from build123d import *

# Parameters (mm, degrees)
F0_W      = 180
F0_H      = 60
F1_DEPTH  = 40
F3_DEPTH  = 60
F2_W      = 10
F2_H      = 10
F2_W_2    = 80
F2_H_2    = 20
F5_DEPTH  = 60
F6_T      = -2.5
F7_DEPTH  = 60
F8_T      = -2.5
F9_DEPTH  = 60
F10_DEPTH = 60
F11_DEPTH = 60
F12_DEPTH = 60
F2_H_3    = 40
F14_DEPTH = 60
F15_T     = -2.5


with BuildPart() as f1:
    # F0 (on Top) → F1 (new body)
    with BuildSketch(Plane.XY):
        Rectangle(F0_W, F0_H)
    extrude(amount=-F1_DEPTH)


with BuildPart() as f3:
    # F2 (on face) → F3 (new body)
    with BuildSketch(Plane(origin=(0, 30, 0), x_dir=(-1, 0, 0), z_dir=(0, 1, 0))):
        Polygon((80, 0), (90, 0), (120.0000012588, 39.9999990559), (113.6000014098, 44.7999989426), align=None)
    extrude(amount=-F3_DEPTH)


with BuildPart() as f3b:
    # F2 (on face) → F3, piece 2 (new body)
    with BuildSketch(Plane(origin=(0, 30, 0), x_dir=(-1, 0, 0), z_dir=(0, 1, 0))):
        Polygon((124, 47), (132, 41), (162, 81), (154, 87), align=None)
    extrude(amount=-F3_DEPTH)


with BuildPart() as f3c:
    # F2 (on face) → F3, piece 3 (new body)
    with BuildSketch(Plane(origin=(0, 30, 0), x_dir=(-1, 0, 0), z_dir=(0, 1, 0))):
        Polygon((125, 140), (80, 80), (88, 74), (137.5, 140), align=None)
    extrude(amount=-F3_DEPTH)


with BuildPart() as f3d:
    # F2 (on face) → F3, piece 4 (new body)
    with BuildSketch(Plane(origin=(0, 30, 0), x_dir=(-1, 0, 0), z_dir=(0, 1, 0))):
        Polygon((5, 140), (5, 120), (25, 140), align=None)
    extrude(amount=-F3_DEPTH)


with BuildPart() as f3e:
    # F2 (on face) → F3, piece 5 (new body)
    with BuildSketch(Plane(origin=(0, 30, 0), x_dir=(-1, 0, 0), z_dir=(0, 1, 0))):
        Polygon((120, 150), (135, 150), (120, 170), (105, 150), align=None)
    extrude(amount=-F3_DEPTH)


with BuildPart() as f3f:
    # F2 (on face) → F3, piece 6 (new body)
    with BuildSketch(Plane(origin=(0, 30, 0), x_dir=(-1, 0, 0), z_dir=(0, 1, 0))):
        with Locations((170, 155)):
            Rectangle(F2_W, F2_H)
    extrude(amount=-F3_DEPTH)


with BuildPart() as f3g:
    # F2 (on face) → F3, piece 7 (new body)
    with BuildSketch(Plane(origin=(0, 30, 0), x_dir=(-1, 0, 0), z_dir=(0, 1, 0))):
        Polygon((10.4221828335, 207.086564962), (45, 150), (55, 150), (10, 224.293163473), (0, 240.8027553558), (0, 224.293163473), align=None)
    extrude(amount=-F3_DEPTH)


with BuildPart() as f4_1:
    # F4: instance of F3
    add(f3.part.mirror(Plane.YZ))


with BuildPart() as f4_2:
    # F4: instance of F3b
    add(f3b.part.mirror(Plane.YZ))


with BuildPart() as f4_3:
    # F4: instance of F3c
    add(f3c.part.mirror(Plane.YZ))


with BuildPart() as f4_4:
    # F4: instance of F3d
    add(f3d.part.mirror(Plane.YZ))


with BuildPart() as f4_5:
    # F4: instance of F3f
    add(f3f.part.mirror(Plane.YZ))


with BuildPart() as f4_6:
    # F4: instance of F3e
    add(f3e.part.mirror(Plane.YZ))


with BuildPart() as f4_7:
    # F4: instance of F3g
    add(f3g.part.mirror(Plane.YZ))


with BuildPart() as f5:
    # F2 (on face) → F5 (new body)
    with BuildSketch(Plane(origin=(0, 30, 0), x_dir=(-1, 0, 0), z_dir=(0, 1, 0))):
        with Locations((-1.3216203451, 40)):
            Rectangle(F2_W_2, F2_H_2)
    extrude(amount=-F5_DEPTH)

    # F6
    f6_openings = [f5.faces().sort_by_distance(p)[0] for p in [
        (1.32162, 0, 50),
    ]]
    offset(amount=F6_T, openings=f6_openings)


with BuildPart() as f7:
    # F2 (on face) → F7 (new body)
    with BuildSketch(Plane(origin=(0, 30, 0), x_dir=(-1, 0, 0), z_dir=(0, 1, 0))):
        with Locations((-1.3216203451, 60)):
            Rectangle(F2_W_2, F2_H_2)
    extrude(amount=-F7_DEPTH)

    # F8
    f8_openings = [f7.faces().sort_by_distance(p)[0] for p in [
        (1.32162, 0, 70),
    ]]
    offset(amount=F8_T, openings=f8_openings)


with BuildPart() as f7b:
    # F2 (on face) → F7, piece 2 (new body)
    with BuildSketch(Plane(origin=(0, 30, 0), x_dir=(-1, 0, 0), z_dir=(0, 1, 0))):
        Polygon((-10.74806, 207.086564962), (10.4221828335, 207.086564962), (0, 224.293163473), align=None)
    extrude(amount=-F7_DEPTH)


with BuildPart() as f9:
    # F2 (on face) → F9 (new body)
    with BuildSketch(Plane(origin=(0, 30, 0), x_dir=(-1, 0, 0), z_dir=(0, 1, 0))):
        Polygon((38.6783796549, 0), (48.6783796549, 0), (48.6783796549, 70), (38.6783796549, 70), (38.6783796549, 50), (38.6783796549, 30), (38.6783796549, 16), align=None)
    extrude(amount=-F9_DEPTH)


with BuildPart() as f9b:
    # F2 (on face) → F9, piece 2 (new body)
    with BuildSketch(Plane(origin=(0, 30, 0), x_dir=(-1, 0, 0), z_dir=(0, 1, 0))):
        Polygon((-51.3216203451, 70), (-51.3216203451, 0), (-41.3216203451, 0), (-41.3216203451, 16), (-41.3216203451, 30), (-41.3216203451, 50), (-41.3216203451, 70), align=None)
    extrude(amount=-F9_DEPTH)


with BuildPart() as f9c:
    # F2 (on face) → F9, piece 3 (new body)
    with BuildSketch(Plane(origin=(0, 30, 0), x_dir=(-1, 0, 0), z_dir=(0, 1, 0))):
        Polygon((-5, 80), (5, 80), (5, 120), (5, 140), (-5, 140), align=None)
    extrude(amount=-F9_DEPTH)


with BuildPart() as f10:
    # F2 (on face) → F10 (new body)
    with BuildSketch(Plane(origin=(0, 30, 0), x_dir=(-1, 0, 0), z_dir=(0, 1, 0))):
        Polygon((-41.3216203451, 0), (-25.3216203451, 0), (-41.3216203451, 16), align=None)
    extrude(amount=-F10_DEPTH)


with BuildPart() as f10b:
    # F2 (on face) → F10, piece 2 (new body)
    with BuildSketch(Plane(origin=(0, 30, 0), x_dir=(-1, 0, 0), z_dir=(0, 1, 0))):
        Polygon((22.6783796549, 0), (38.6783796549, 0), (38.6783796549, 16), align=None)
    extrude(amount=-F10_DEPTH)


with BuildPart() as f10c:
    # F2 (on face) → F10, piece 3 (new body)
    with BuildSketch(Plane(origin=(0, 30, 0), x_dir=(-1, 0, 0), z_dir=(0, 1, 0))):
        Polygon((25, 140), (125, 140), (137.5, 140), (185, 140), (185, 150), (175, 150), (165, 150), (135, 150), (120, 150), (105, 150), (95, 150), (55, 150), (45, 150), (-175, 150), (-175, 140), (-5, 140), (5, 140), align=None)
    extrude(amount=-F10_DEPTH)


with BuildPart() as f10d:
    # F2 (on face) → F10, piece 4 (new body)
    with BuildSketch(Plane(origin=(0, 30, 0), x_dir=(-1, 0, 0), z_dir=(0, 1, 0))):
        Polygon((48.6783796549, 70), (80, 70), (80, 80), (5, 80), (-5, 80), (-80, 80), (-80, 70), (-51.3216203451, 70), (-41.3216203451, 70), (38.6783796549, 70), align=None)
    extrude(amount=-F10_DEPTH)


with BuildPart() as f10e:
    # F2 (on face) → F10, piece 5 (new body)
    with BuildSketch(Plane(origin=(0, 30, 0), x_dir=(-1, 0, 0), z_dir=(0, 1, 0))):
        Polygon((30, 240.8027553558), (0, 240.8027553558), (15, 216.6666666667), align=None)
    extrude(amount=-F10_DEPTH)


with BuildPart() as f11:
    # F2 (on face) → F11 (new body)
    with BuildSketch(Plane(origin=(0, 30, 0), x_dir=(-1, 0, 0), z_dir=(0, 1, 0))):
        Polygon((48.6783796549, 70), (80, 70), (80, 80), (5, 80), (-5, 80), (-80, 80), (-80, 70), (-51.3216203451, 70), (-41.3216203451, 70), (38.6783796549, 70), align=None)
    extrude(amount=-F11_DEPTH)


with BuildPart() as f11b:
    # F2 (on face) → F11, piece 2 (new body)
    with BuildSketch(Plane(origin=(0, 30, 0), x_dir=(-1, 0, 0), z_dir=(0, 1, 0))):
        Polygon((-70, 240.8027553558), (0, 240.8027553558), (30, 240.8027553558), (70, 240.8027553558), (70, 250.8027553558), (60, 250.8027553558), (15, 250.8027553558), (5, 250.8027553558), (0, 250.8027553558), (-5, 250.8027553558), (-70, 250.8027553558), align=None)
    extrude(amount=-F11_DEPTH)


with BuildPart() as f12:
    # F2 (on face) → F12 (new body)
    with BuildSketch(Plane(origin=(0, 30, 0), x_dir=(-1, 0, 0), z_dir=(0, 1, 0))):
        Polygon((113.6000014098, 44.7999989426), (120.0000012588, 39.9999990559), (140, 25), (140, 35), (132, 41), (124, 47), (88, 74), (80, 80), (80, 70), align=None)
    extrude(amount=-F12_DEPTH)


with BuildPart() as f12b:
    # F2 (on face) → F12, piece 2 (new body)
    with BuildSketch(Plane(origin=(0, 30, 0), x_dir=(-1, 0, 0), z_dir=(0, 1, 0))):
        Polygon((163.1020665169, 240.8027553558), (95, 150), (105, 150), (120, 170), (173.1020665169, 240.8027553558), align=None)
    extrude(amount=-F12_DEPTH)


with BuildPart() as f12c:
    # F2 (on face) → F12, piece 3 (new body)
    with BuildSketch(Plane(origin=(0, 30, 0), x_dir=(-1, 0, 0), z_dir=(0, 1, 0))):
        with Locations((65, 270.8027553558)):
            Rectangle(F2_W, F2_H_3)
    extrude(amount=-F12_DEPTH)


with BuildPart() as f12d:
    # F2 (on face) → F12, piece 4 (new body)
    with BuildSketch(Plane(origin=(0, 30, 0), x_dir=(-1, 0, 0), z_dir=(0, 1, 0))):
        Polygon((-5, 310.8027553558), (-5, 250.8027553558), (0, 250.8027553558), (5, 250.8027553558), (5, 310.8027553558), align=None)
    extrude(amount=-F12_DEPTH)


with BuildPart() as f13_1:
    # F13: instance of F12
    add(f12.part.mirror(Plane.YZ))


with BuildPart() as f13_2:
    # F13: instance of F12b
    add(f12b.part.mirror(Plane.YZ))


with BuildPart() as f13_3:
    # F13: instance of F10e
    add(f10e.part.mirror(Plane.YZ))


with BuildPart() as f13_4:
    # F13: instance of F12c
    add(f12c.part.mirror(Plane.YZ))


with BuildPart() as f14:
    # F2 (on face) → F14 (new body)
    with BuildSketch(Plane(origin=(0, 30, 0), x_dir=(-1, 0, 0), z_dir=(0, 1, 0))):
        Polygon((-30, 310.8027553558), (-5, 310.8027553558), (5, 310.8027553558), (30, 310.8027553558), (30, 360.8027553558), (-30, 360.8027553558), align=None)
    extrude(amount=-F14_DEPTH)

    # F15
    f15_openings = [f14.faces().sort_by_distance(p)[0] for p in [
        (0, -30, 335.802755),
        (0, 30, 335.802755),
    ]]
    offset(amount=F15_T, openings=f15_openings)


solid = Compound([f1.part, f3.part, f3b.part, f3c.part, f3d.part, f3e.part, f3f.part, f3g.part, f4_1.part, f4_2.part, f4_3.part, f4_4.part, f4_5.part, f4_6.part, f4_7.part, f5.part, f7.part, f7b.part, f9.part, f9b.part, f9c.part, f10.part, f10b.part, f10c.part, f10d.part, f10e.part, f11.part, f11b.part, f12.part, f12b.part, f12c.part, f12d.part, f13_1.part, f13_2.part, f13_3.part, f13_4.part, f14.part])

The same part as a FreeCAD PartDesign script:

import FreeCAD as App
import Part
import Sketcher


def faces_at(feature, points):
    """Names of the faces that lie closest to the given points."""
    faces = feature.Shape.Faces
    near = lambda p: min(range(len(faces)), key=lambda i: faces[i].distToShape(Part.Vertex(*p))[0])
    return sorted({f"Face{near(p) + 1}" for p in points})


def add_polygon(sketch, points):
    """Adds a closed chain of lines whose ends are joined by coincident constraints."""
    first, n = sketch.GeometryCount, len(points)
    for a, b in zip(points, points[1:] + points[:1]):
        sketch.addGeometry(Part.LineSegment(App.Vector(*a, 0), App.Vector(*b, 0)), False)
    for i in range(n):
        sketch.addConstraint(Sketcher.Constraint("Coincident", first + i, 2, first + (i + 1) % n, 1))

doc = App.newDocument("Part")
body = doc.addObject("PartDesign::Body", "Body")

# Sketch on XY plane
sketch1 = doc.addObject("Sketcher::SketchObject", "Sketch")
body.addObject(sketch1)
sketch1.AttachmentSupport = (doc.XY_Plane, [""])
sketch1.MapMode = "FlatFace"
add_polygon(sketch1, [(-90, 30), (-90, -30), (90, -30), (90, 30)])  # lines 0-3
sketch1.addConstraint(Sketcher.Constraint("Vertical", 0))
sketch1.addConstraint(Sketcher.Constraint("Horizontal", 1))
sketch1.addConstraint(Sketcher.Constraint("Vertical", 2))
sketch1.addConstraint(Sketcher.Constraint("Horizontal", 3))
sketch1.addConstraint(Sketcher.Constraint("Symmetric", 0, 2, 2, 2, -1, 1))
sketch1.addConstraint(Sketcher.Constraint("DistanceX", 1, 1, 1, 2, 180.0))
sketch1.addConstraint(Sketcher.Constraint("DistanceY", 0, 2, 0, 1, 60.0))
pad1 = doc.addObject("PartDesign::Pad", "Pad")
body.addObject(pad1)
pad1.Profile = sketch1
pad1.Length = 40
pad1.Reversed = True
body2 = doc.addObject("PartDesign::Body", "Body001")

# Sketch on XZ plane
sketch2 = doc.addObject("Sketcher::SketchObject", "Sketch001")
body2.addObject(sketch2)
sketch2.AttachmentSupport = (doc.getObject("XZ_Plane001"), [""])
sketch2.MapMode = "FlatFace"
sketch2.AttachmentOffset = App.Placement(App.Vector(0, 0, -30), App.Rotation())
add_polygon(sketch2, [(-80, 0), (-90, 0), (-120, 40), (-114, 45)])  # lines 0-3
sketch2.addConstraint(Sketcher.Constraint("Horizontal", 0))
sketch2.addConstraint(Sketcher.Constraint("PointOnObject", 0, 2, -1))
sketch2.addConstraint(Sketcher.Constraint("Perpendicular", 1, 2))
sketch2.addConstraint(Sketcher.Constraint("Perpendicular", 2, 3))
sketch2.addConstraint(Sketcher.Constraint("DistanceX", 0, 2, 0, 1, 10.0))
sketch2.addConstraint(Sketcher.Constraint("Distance", 1, 50.0))
sketch2.addConstraint(Sketcher.Constraint("Distance", 2, 8.0))
sketch2.addConstraint(Sketcher.Constraint("DistanceX", 0, 2, -1, 1, 90.0))
pad2 = doc.addObject("PartDesign::Pad", "Pad001")
body2.addObject(pad2)
pad2.Profile = sketch2
pad2.Length = 60
body3 = doc.addObject("PartDesign::Body", "Body002")

# Sketch on XZ plane
sketch3 = doc.addObject("Sketcher::SketchObject", "Sketch002")
body3.addObject(sketch3)
sketch3.AttachmentSupport = (doc.getObject("XZ_Plane002"), [""])
sketch3.MapMode = "FlatFace"
sketch3.AttachmentOffset = App.Placement(App.Vector(0, 0, -30), App.Rotation())
add_polygon(sketch3, [(-124, 47), (-132, 41), (-162, 81), (-154, 87)])  # lines 0-3
sketch3.addConstraint(Sketcher.Constraint("Perpendicular", 0, 1))
sketch3.addConstraint(Sketcher.Constraint("Perpendicular", 1, 2))
sketch3.addConstraint(Sketcher.Constraint("Perpendicular", 2, 3))
sketch3.addConstraint(Sketcher.Constraint("Distance", 0, 10.0))
sketch3.addConstraint(Sketcher.Constraint("Distance", 1, 50.0))
sketch3.addConstraint(Sketcher.Constraint("DistanceX", 0, 2, -1, 1, 132.0))
sketch3.addConstraint(Sketcher.Constraint("DistanceY", -1, 1, 0, 2, 41.0))
sketch3.addConstraint(Sketcher.Constraint("DistanceX", 1, 2, -1, 1, 162.0))
pad3 = doc.addObject("PartDesign::Pad", "Pad002")
body3.addObject(pad3)
pad3.Profile = sketch3
pad3.Length = 60
body4 = doc.addObject("PartDesign::Body", "Body003")

# Sketch on XZ plane
sketch4 = doc.addObject("Sketcher::SketchObject", "Sketch003")
body4.addObject(sketch4)
sketch4.AttachmentSupport = (doc.getObject("XZ_Plane003"), [""])
sketch4.MapMode = "FlatFace"
sketch4.AttachmentOffset = App.Placement(App.Vector(0, 0, -30), App.Rotation())
add_polygon(sketch4, [(-125, 140), (-80, 80), (-88, 74), (-138, 140)])  # lines 0-3
sketch4.addConstraint(Sketcher.Constraint("Horizontal", 3))
sketch4.addConstraint(Sketcher.Constraint("Perpendicular", 0, 1))
sketch4.addConstraint(Sketcher.Constraint("Perpendicular", 1, 2))
sketch4.addConstraint(Sketcher.Constraint("Distance", 0, 75.0))
sketch4.addConstraint(Sketcher.Constraint("Distance", 1, 10.0))
sketch4.addConstraint(Sketcher.Constraint("DistanceX", 3, 1, 3, 2, 12.5))
sketch4.addConstraint(Sketcher.Constraint("DistanceX", 0, 2, -1, 1, 80.0))
sketch4.addConstraint(Sketcher.Constraint("DistanceY", -1, 1, 0, 2, 80.0))
pad4 = doc.addObject("PartDesign::Pad", "Pad003")
body4.addObject(pad4)
pad4.Profile = sketch4
pad4.Length = 60
body5 = doc.addObject("PartDesign::Body", "Body004")

# Sketch on XZ plane
sketch5 = doc.addObject("Sketcher::SketchObject", "Sketch004")
body5.addObject(sketch5)
sketch5.AttachmentSupport = (doc.getObject("XZ_Plane004"), [""])
sketch5.MapMode = "FlatFace"
sketch5.AttachmentOffset = App.Placement(App.Vector(0, 0, -30), App.Rotation())
add_polygon(sketch5, [(-5, 140), (-5, 120), (-25, 140)])  # lines 0-2
sketch5.addConstraint(Sketcher.Constraint("Vertical", 0))
sketch5.addConstraint(Sketcher.Constraint("Horizontal", 2))
sketch5.addConstraint(Sketcher.Constraint("Equal", 2, 0))
sketch5.addConstraint(Sketcher.Constraint("DistanceX", 2, 1, 2, 2, 20.0))
sketch5.addConstraint(Sketcher.Constraint("DistanceX", 0, 2, -1, 1, 5.0))
sketch5.addConstraint(Sketcher.Constraint("DistanceY", -1, 1, 0, 2, 120.0))
pad5 = doc.addObject("PartDesign::Pad", "Pad004")
body5.addObject(pad5)
pad5.Profile = sketch5
pad5.Length = 60
body6 = doc.addObject("PartDesign::Body", "Body005")

# Sketch on XZ plane
sketch6 = doc.addObject("Sketcher::SketchObject", "Sketch005")
body6.addObject(sketch6)
sketch6.AttachmentSupport = (doc.getObject("XZ_Plane005"), [""])
sketch6.MapMode = "FlatFace"
sketch6.AttachmentOffset = App.Placement(App.Vector(0, 0, -30), App.Rotation())
add_polygon(sketch6, [(-135, 150), (-120, 170), (-105, 150)])  # lines 0-2
sketch6.addConstraint(Sketcher.Constraint("Horizontal", 2))
sketch6.addConstraint(Sketcher.Constraint("Equal", 0, 1))
sketch6.addConstraint(Sketcher.Constraint("DistanceX", 2, 2, 2, 1, 30.0))
sketch6.addConstraint(Sketcher.Constraint("Distance", 0, 25.0))
sketch6.addConstraint(Sketcher.Constraint("DistanceX", 0, 2, -1, 1, 120.0))
sketch6.addConstraint(Sketcher.Constraint("DistanceY", -1, 1, 0, 2, 170.0))
pad6 = doc.addObject("PartDesign::Pad", "Pad005")
body6.addObject(pad6)
pad6.Profile = sketch6
pad6.Length = 60
body7 = doc.addObject("PartDesign::Body", "Body006")

# Sketch on XZ plane
sketch7 = doc.addObject("Sketcher::SketchObject", "Sketch006")
body7.addObject(sketch7)
sketch7.AttachmentSupport = (doc.getObject("XZ_Plane006"), [""])
sketch7.MapMode = "FlatFace"
sketch7.AttachmentOffset = App.Placement(App.Vector(0, 0, -30), App.Rotation())
add_polygon(sketch7, [(-165, 160), (-165, 150), (-175, 150), (-175, 160)])  # lines 0-3
sketch7.addConstraint(Sketcher.Constraint("Vertical", 0))
sketch7.addConstraint(Sketcher.Constraint("Horizontal", 1))
sketch7.addConstraint(Sketcher.Constraint("Vertical", 2))
sketch7.addConstraint(Sketcher.Constraint("Horizontal", 3))
sketch7.addConstraint(Sketcher.Constraint("Equal", 3, 0))
sketch7.addConstraint(Sketcher.Constraint("DistanceX", 1, 2, 1, 1, 10.0))
sketch7.addConstraint(Sketcher.Constraint("DistanceX", 0, 2, -1, 1, 165.0))
sketch7.addConstraint(Sketcher.Constraint("DistanceY", -1, 1, 0, 2, 150.0))
pad7 = doc.addObject("PartDesign::Pad", "Pad006")
body7.addObject(pad7)
pad7.Profile = sketch7
pad7.Length = 60
body8 = doc.addObject("PartDesign::Body", "Body007")

# Sketch on XZ plane
sketch8 = doc.addObject("Sketcher::SketchObject", "Sketch007")
body8.addObject(sketch8)
sketch8.AttachmentSupport = (doc.getObject("XZ_Plane007"), [""])
sketch8.MapMode = "FlatFace"
sketch8.AttachmentOffset = App.Placement(App.Vector(0, 0, -30), App.Rotation())
add_polygon(sketch8, [(-45, 150), (-55, 150), (-10, 224), (0, 241), (0, 224)])  # lines 0-4
sketch8.addConstraint(Sketcher.Constraint("Horizontal", 0))
sketch8.addConstraint(Sketcher.Constraint("Vertical", 3))
sketch8.addConstraint(Sketcher.Constraint("PointOnObject", 2, 2, -2))
sketch8.addConstraint(Sketcher.Constraint("Parallel", 1, 2))
sketch8.addConstraint(Sketcher.Constraint("Parallel", 2, 4))
sketch8.addConstraint(Sketcher.Constraint("Horizontal", 1, 2, 3, 2))
sketch8.addConstraint(Sketcher.Constraint("DistanceX", 0, 2, 0, 1, 10.0))
sketch8.addConstraint(Sketcher.Constraint("DistanceX", 0, 2, -1, 1, 55.0))
sketch8.addConstraint(Sketcher.Constraint("DistanceY", -1, 1, 0, 2, 150.0))
sketch8.addConstraint(Sketcher.Constraint("DistanceY", 3, 2, 3, 1, 16.509592))
pad8 = doc.addObject("PartDesign::Pad", "Pad007")
body8.addObject(pad8)
pad8.Profile = sketch8
pad8.Length = 60
body9 = doc.addObject("PartDesign::Body", "Body008")
doc.recompute()

mirroring = doc.addObject("Part::Mirroring", "Mirroring")
mirroring.Source = body2
mirroring.Base = App.Vector(0, 0, 0)
mirroring.Normal = App.Vector(1, 0, 0)
body9.BaseFeature = mirroring
doc.recompute()
body10 = doc.addObject("PartDesign::Body", "Body009")
doc.recompute()

mirroring2 = doc.addObject("Part::Mirroring", "Mirroring001")
mirroring2.Source = body3
mirroring2.Base = App.Vector(0, 0, 0)
mirroring2.Normal = App.Vector(1, 0, 0)
body10.BaseFeature = mirroring2
doc.recompute()
body11 = doc.addObject("PartDesign::Body", "Body010")
doc.recompute()

mirroring3 = doc.addObject("Part::Mirroring", "Mirroring002")
mirroring3.Source = body4
mirroring3.Base = App.Vector(0, 0, 0)
mirroring3.Normal = App.Vector(1, 0, 0)
body11.BaseFeature = mirroring3
doc.recompute()
body12 = doc.addObject("PartDesign::Body", "Body011")
doc.recompute()

mirroring4 = doc.addObject("Part::Mirroring", "Mirroring003")
mirroring4.Source = body5
mirroring4.Base = App.Vector(0, 0, 0)
mirroring4.Normal = App.Vector(1, 0, 0)
body12.BaseFeature = mirroring4
doc.recompute()
body13 = doc.addObject("PartDesign::Body", "Body012")
doc.recompute()

mirroring5 = doc.addObject("Part::Mirroring", "Mirroring004")
mirroring5.Source = body7
mirroring5.Base = App.Vector(0, 0, 0)
mirroring5.Normal = App.Vector(1, 0, 0)
body13.BaseFeature = mirroring5
doc.recompute()
body14 = doc.addObject("PartDesign::Body", "Body013")
doc.recompute()

mirroring6 = doc.addObject("Part::Mirroring", "Mirroring005")
mirroring6.Source = body6
mirroring6.Base = App.Vector(0, 0, 0)
mirroring6.Normal = App.Vector(1, 0, 0)
body14.BaseFeature = mirroring6
doc.recompute()
body15 = doc.addObject("PartDesign::Body", "Body014")
doc.recompute()

mirroring7 = doc.addObject("Part::Mirroring", "Mirroring006")
mirroring7.Source = body8
mirroring7.Base = App.Vector(0, 0, 0)
mirroring7.Normal = App.Vector(1, 0, 0)
body15.BaseFeature = mirroring7
doc.recompute()
body16 = doc.addObject("PartDesign::Body", "Body015")

# Sketch on XZ plane
sketch9 = doc.addObject("Sketcher::SketchObject", "Sketch008")
body16.addObject(sketch9)
sketch9.AttachmentSupport = (doc.getObject("XZ_Plane015"), [""])
sketch9.MapMode = "FlatFace"
sketch9.AttachmentOffset = App.Placement(App.Vector(0, 0, -30), App.Rotation())
add_polygon(sketch9, [(41, 50), (41, 30), (-39, 30), (-39, 50)])  # lines 0-3
sketch9.addConstraint(Sketcher.Constraint("Vertical", 0))
sketch9.addConstraint(Sketcher.Constraint("Horizontal", 1))
sketch9.addConstraint(Sketcher.Constraint("Vertical", 2))
sketch9.addConstraint(Sketcher.Constraint("Horizontal", 3))
sketch9.addConstraint(Sketcher.Constraint("DistanceX", 1, 2, 1, 1, 80.0))
sketch9.addConstraint(Sketcher.Constraint("DistanceY", 0, 2, 0, 1, 20.0))
sketch9.addConstraint(Sketcher.Constraint("DistanceY", -1, 1, 0, 2, 30.0))
sketch9.addConstraint(Sketcher.Constraint("DistanceX", -1, 1, 0, 2, 41.32162))
pad9 = doc.addObject("PartDesign::Pad", "Pad008")
body16.addObject(pad9)
pad9.Profile = sketch9
pad9.Length = 60
doc.recompute()

thickness = doc.addObject("PartDesign::Thickness", "Thickness")
body16.addObject(thickness)
thickness.Base = (pad9, faces_at(pad9, [(1.322, 0, 50)]))
thickness.Value = 2.5
thickness.Reversed = True
thickness.Join = "Arc"
body17 = doc.addObject("PartDesign::Body", "Body016")

# Sketch on XZ plane
sketch10 = doc.addObject("Sketcher::SketchObject", "Sketch009")
body17.addObject(sketch10)
sketch10.AttachmentSupport = (doc.getObject("XZ_Plane016"), [""])
sketch10.MapMode = "FlatFace"
sketch10.AttachmentOffset = App.Placement(App.Vector(0, 0, -30), App.Rotation())
add_polygon(sketch10, [(41, 70), (41, 50), (-39, 50), (-39, 70)])  # lines 0-3
sketch10.addConstraint(Sketcher.Constraint("Vertical", 0))
sketch10.addConstraint(Sketcher.Constraint("Horizontal", 1))
sketch10.addConstraint(Sketcher.Constraint("Vertical", 2))
sketch10.addConstraint(Sketcher.Constraint("Horizontal", 3))
sketch10.addConstraint(Sketcher.Constraint("DistanceX", 1, 2, 1, 1, 80.0))
sketch10.addConstraint(Sketcher.Constraint("DistanceY", 0, 2, 0, 1, 20.0))
sketch10.addConstraint(Sketcher.Constraint("DistanceY", -1, 1, 0, 2, 50.0))
sketch10.addConstraint(Sketcher.Constraint("DistanceX", -1, 1, 0, 2, 41.32162))
pad10 = doc.addObject("PartDesign::Pad", "Pad009")
body17.addObject(pad10)
pad10.Profile = sketch10
pad10.Length = 60
doc.recompute()

thickness2 = doc.addObject("PartDesign::Thickness", "Thickness001")
body17.addObject(thickness2)
thickness2.Base = (pad10, faces_at(pad10, [(1.322, 0, 70)]))
thickness2.Value = 2.5
thickness2.Reversed = True
thickness2.Join = "Arc"
body18 = doc.addObject("PartDesign::Body", "Body017")

# Sketch on XZ plane
sketch11 = doc.addObject("Sketcher::SketchObject", "Sketch010")
body18.addObject(sketch11)
sketch11.AttachmentSupport = (doc.getObject("XZ_Plane017"), [""])
sketch11.MapMode = "FlatFace"
sketch11.AttachmentOffset = App.Placement(App.Vector(0, 0, -30), App.Rotation())
add_polygon(sketch11, [(11, 207), (-10, 207), (0, 224)])  # lines 0-2
sketch11.addConstraint(Sketcher.Constraint("Horizontal", 0))
sketch11.addConstraint(Sketcher.Constraint("PointOnObject", 1, 2, -2))
sketch11.addConstraint(Sketcher.Constraint("DistanceY", 0, 2, 1, 2, 17.206599))
sketch11.addConstraint(Sketcher.Constraint("Distance", 1, 20.116882))
sketch11.addConstraint(Sketcher.Constraint("DistanceX", 0, 2, 0, 1, 21.170243))
sketch11.addConstraint(Sketcher.Constraint("DistanceY", -1, 1, 0, 2, 207.086565))
pad11 = doc.addObject("PartDesign::Pad", "Pad010")
body18.addObject(pad11)
pad11.Profile = sketch11
pad11.Length = 60
body19 = doc.addObject("PartDesign::Body", "Body018")

# Sketch on XZ plane
sketch12 = doc.addObject("Sketcher::SketchObject", "Sketch011")
body19.addObject(sketch12)
sketch12.AttachmentSupport = (doc.getObject("XZ_Plane018"), [""])
sketch12.MapMode = "FlatFace"
sketch12.AttachmentOffset = App.Placement(App.Vector(0, 0, -30), App.Rotation())
add_polygon(sketch12, [(-39, 0), (-49, 0), (-49, 70), (-39, 70)])  # lines 0-3
sketch12.addConstraint(Sketcher.Constraint("Horizontal", 0))
sketch12.addConstraint(Sketcher.Constraint("Vertical", 1))
sketch12.addConstraint(Sketcher.Constraint("Horizontal", 2))
sketch12.addConstraint(Sketcher.Constraint("Vertical", 3))
sketch12.addConstraint(Sketcher.Constraint("PointOnObject", 0, 2, -1))
sketch12.addConstraint(Sketcher.Constraint("DistanceX", 0, 2, 0, 1, 10.0))
sketch12.addConstraint(Sketcher.Constraint("DistanceY", 1, 1, 1, 2, 70.0))
sketch12.addConstraint(Sketcher.Constraint("DistanceX", 0, 2, -1, 1, 48.67838))
pad12 = doc.addObject("PartDesign::Pad", "Pad011")
body19.addObject(pad12)
pad12.Profile = sketch12
pad12.Length = 60
body20 = doc.addObject("PartDesign::Body", "Body019")

# Sketch on XZ plane
sketch13 = doc.addObject("Sketcher::SketchObject", "Sketch012")
body20.addObject(sketch13)
sketch13.AttachmentSupport = (doc.getObject("XZ_Plane019"), [""])
sketch13.MapMode = "FlatFace"
sketch13.AttachmentOffset = App.Placement(App.Vector(0, 0, -30), App.Rotation())
add_polygon(sketch13, [(51, 70), (51, 0), (41, 0), (41, 70)])  # lines 0-3
sketch13.addConstraint(Sketcher.Constraint("Vertical", 0))
sketch13.addConstraint(Sketcher.Constraint("Horizontal", 1))
sketch13.addConstraint(Sketcher.Constraint("Vertical", 2))
sketch13.addConstraint(Sketcher.Constraint("Horizontal", 3))
sketch13.addConstraint(Sketcher.Constraint("PointOnObject", 0, 2, -1))
sketch13.addConstraint(Sketcher.Constraint("DistanceX", 1, 2, 1, 1, 10.0))
sketch13.addConstraint(Sketcher.Constraint("DistanceY", 0, 2, 0, 1, 70.0))
sketch13.addConstraint(Sketcher.Constraint("DistanceX", -1, 1, 0, 2, 51.32162))
pad13 = doc.addObject("PartDesign::Pad", "Pad012")
body20.addObject(pad13)
pad13.Profile = sketch13
pad13.Length = 60
body21 = doc.addObject("PartDesign::Body", "Body020")

# Sketch on XZ plane
sketch14 = doc.addObject("Sketcher::SketchObject", "Sketch013")
body21.addObject(sketch14)
sketch14.AttachmentSupport = (doc.getObject("XZ_Plane020"), [""])
sketch14.MapMode = "FlatFace"
sketch14.AttachmentOffset = App.Placement(App.Vector(0, 0, -30), App.Rotation())
add_polygon(sketch14, [(5, 80), (-5, 80), (-5, 140), (5, 140)])  # lines 0-3
sketch14.addConstraint(Sketcher.Constraint("Horizontal", 0))
sketch14.addConstraint(Sketcher.Constraint("Vertical", 1))
sketch14.addConstraint(Sketcher.Constraint("Horizontal", 2))
sketch14.addConstraint(Sketcher.Constraint("Vertical", 3))
sketch14.addConstraint(Sketcher.Constraint("DistanceX", 0, 2, 0, 1, 10.0))
sketch14.addConstraint(Sketcher.Constraint("DistanceY", 1, 1, 1, 2, 60.0))
sketch14.addConstraint(Sketcher.Constraint("DistanceX", 0, 2, -1, 1, 5.0))
sketch14.addConstraint(Sketcher.Constraint("DistanceY", -1, 1, 0, 2, 80.0))
pad14 = doc.addObject("PartDesign::Pad", "Pad013")
body21.addObject(pad14)
pad14.Profile = sketch14
pad14.Length = 60
body22 = doc.addObject("PartDesign::Body", "Body021")

# Sketch on XZ plane
sketch15 = doc.addObject("Sketcher::SketchObject", "Sketch014")
body22.addObject(sketch15)
sketch15.AttachmentSupport = (doc.getObject("XZ_Plane021"), [""])
sketch15.MapMode = "FlatFace"
sketch15.AttachmentOffset = App.Placement(App.Vector(0, 0, -30), App.Rotation())
add_polygon(sketch15, [(41, 0), (25, 0), (41, 16)])  # lines 0-2
sketch15.addConstraint(Sketcher.Constraint("Horizontal", 0))
sketch15.addConstraint(Sketcher.Constraint("Vertical", 2))
sketch15.addConstraint(Sketcher.Constraint("PointOnObject", 0, 2, -1))
sketch15.addConstraint(Sketcher.Constraint("Equal", 0, 2))
sketch15.addConstraint(Sketcher.Constraint("DistanceX", 0, 2, 0, 1, 16.0))
sketch15.addConstraint(Sketcher.Constraint("DistanceX", -1, 1, 0, 2, 25.32162))
pad15 = doc.addObject("PartDesign::Pad", "Pad014")
body22.addObject(pad15)
pad15.Profile = sketch15
pad15.Length = 60
body23 = doc.addObject("PartDesign::Body", "Body022")

# Sketch on XZ plane
sketch16 = doc.addObject("Sketcher::SketchObject", "Sketch015")
body23.addObject(sketch16)
sketch16.AttachmentSupport = (doc.getObject("XZ_Plane022"), [""])
sketch16.MapMode = "FlatFace"
sketch16.AttachmentOffset = App.Placement(App.Vector(0, 0, -30), App.Rotation())
add_polygon(sketch16, [(-23, 0), (-39, 0), (-39, 16)])  # lines 0-2
sketch16.addConstraint(Sketcher.Constraint("Horizontal", 0))
sketch16.addConstraint(Sketcher.Constraint("Vertical", 1))
sketch16.addConstraint(Sketcher.Constraint("PointOnObject", 0, 2, -1))
sketch16.addConstraint(Sketcher.Constraint("Equal", 0, 1))
sketch16.addConstraint(Sketcher.Constraint("DistanceX", 0, 2, 0, 1, 16.0))
sketch16.addConstraint(Sketcher.Constraint("DistanceX", 0, 2, -1, 1, 38.67838))
pad16 = doc.addObject("PartDesign::Pad", "Pad015")
body23.addObject(pad16)
pad16.Profile = sketch16
pad16.Length = 60
body24 = doc.addObject("PartDesign::Body", "Body023")

# Sketch on XZ plane
sketch17 = doc.addObject("Sketcher::SketchObject", "Sketch016")
body24.addObject(sketch17)
sketch17.AttachmentSupport = (doc.getObject("XZ_Plane023"), [""])
sketch17.MapMode = "FlatFace"
sketch17.AttachmentOffset = App.Placement(App.Vector(0, 0, -30), App.Rotation())
add_polygon(sketch17, [(-185, 140), (-185, 150), (175, 150), (175, 140)])  # lines 0-3
sketch17.addConstraint(Sketcher.Constraint("Vertical", 0))
sketch17.addConstraint(Sketcher.Constraint("Horizontal", 1))
sketch17.addConstraint(Sketcher.Constraint("Vertical", 2))
sketch17.addConstraint(Sketcher.Constraint("Horizontal", 3))
sketch17.addConstraint(Sketcher.Constraint("DistanceX", 1, 1, 1, 2, 360.0))
sketch17.addConstraint(Sketcher.Constraint("DistanceY", 0, 1, 0, 2, 10.0))
sketch17.addConstraint(Sketcher.Constraint("DistanceX", 0, 2, -1, 1, 185.0))
sketch17.addConstraint(Sketcher.Constraint("DistanceY", -1, 1, 0, 2, 150.0))
pad17 = doc.addObject("PartDesign::Pad", "Pad016")
body24.addObject(pad17)
pad17.Profile = sketch17
pad17.Length = 60
body25 = doc.addObject("PartDesign::Body", "Body024")

# Sketch on XZ plane
sketch18 = doc.addObject("Sketcher::SketchObject", "Sketch017")
body25.addObject(sketch18)
sketch18.AttachmentSupport = (doc.getObject("XZ_Plane024"), [""])
sketch18.MapMode = "FlatFace"
sketch18.AttachmentOffset = App.Placement(App.Vector(0, 0, -30), App.Rotation())
add_polygon(sketch18, [(-80, 70), (-80, 80), (80, 80), (80, 70)])  # lines 0-3
sketch18.addConstraint(Sketcher.Constraint("Vertical", 0))
sketch18.addConstraint(Sketcher.Constraint("Horizontal", 1))
sketch18.addConstraint(Sketcher.Constraint("Vertical", 2))
sketch18.addConstraint(Sketcher.Constraint("Horizontal", 3))
sketch18.addConstraint(Sketcher.Constraint("DistanceX", 1, 1, 1, 2, 160.0))
sketch18.addConstraint(Sketcher.Constraint("DistanceY", 0, 1, 0, 2, 10.0))
sketch18.addConstraint(Sketcher.Constraint("DistanceX", 0, 2, -1, 1, 80.0))
sketch18.addConstraint(Sketcher.Constraint("DistanceY", -1, 1, 0, 2, 80.0))
pad18 = doc.addObject("PartDesign::Pad", "Pad017")
body25.addObject(pad18)
pad18.Profile = sketch18
pad18.Length = 60
body26 = doc.addObject("PartDesign::Body", "Body025")

# Sketch on XZ plane
sketch19 = doc.addObject("Sketcher::SketchObject", "Sketch018")
body26.addObject(sketch19)
sketch19.AttachmentSupport = (doc.getObject("XZ_Plane025"), [""])
sketch19.MapMode = "FlatFace"
sketch19.AttachmentOffset = App.Placement(App.Vector(0, 0, -30), App.Rotation())
add_polygon(sketch19, [(-30, 241), (0, 241), (-15, 217)])  # lines 0-2
sketch19.addConstraint(Sketcher.Constraint("Horizontal", 0))
sketch19.addConstraint(Sketcher.Constraint("PointOnObject", 0, 2, -2))
sketch19.addConstraint(Sketcher.Constraint("Equal", 1, 2))
sketch19.addConstraint(Sketcher.Constraint("DistanceX", 0, 1, 0, 2, 30.0))
sketch19.addConstraint(Sketcher.Constraint("DistanceY", 1, 2, 0, 2, 24.136089))
sketch19.addConstraint(Sketcher.Constraint("DistanceY", -1, 1, 0, 2, 240.802755))
pad19 = doc.addObject("PartDesign::Pad", "Pad018")
body26.addObject(pad19)
pad19.Profile = sketch19
pad19.Length = 60
body27 = doc.addObject("PartDesign::Body", "Body026")

# Sketch on XZ plane
sketch20 = doc.addObject("Sketcher::SketchObject", "Sketch019")
body27.addObject(sketch20)
sketch20.AttachmentSupport = (doc.getObject("XZ_Plane026"), [""])
sketch20.MapMode = "FlatFace"
sketch20.AttachmentOffset = App.Placement(App.Vector(0, 0, -30), App.Rotation())
add_polygon(sketch20, [(-80, 70), (-80, 80), (80, 80), (80, 70)])  # lines 0-3
sketch20.addConstraint(Sketcher.Constraint("Vertical", 0))
sketch20.addConstraint(Sketcher.Constraint("Horizontal", 1))
sketch20.addConstraint(Sketcher.Constraint("Vertical", 2))
sketch20.addConstraint(Sketcher.Constraint("Horizontal", 3))
sketch20.addConstraint(Sketcher.Constraint("DistanceX", 1, 1, 1, 2, 160.0))
sketch20.addConstraint(Sketcher.Constraint("DistanceY", 0, 1, 0, 2, 10.0))
sketch20.addConstraint(Sketcher.Constraint("DistanceX", 0, 2, -1, 1, 80.0))
sketch20.addConstraint(Sketcher.Constraint("DistanceY", -1, 1, 0, 2, 80.0))
pad20 = doc.addObject("PartDesign::Pad", "Pad019")
body27.addObject(pad20)
pad20.Profile = sketch20
pad20.Length = 60
body28 = doc.addObject("PartDesign::Body", "Body027")

# Sketch on XZ plane
sketch21 = doc.addObject("Sketcher::SketchObject", "Sketch020")
body28.addObject(sketch21)
sketch21.AttachmentSupport = (doc.getObject("XZ_Plane027"), [""])
sketch21.MapMode = "FlatFace"
sketch21.AttachmentOffset = App.Placement(App.Vector(0, 0, -30), App.Rotation())
add_polygon(sketch21, [(70, 241), (-70, 241), (-70, 251), (70, 251)])  # lines 0-3
sketch21.addConstraint(Sketcher.Constraint("Horizontal", 0))
sketch21.addConstraint(Sketcher.Constraint("Vertical", 1))
sketch21.addConstraint(Sketcher.Constraint("Horizontal", 2))
sketch21.addConstraint(Sketcher.Constraint("Vertical", 3))
sketch21.addConstraint(Sketcher.Constraint("DistanceX", 0, 2, 0, 1, 140.0))
sketch21.addConstraint(Sketcher.Constraint("DistanceY", 1, 1, 1, 2, 10.0))
sketch21.addConstraint(Sketcher.Constraint("DistanceX", 0, 2, -1, 1, 70.0))
sketch21.addConstraint(Sketcher.Constraint("DistanceY", -1, 1, 0, 2, 240.802755))
pad21 = doc.addObject("PartDesign::Pad", "Pad020")
body28.addObject(pad21)
pad21.Profile = sketch21
pad21.Length = 60
body29 = doc.addObject("PartDesign::Body", "Body028")

# Sketch on XZ plane
sketch22 = doc.addObject("Sketcher::SketchObject", "Sketch021")
body29.addObject(sketch22)
sketch22.AttachmentSupport = (doc.getObject("XZ_Plane028"), [""])
sketch22.MapMode = "FlatFace"
sketch22.AttachmentOffset = App.Placement(App.Vector(0, 0, -30), App.Rotation())
add_polygon(sketch22, [(-114, 45), (-120, 40), (-140, 25), (-140, 35), (-80, 80), (-80, 70)])  # lines 0-5
sketch22.addConstraint(Sketcher.Constraint("Vertical", 2))
sketch22.addConstraint(Sketcher.Constraint("Vertical", 4))
sketch22.addConstraint(Sketcher.Constraint("Parallel", 0, 1))
sketch22.addConstraint(Sketcher.Constraint("Parallel", 1, 3))
sketch22.addConstraint(Sketcher.Constraint("Parallel", 3, 5))
sketch22.addConstraint(Sketcher.Constraint("DistanceY", 2, 1, 2, 2, 10.0))
sketch22.addConstraint(Sketcher.Constraint("Distance", 0, 8.0))
sketch22.addConstraint(Sketcher.Constraint("Distance", 1, 24.999998))
sketch22.addConstraint(Sketcher.Constraint("Distance", 3, 75.0))
sketch22.addConstraint(Sketcher.Constraint("DistanceX", 0, 2, -1, 1, 120.000001))
sketch22.addConstraint(Sketcher.Constraint("DistanceY", -1, 1, 0, 2, 39.999999))
sketch22.addConstraint(Sketcher.Constraint("DistanceX", 1, 2, -1, 1, 140.0))
pad22 = doc.addObject("PartDesign::Pad", "Pad021")
body29.addObject(pad22)
pad22.Profile = sketch22
pad22.Length = 60
body30 = doc.addObject("PartDesign::Body", "Body029")

# Sketch on XZ plane
sketch23 = doc.addObject("Sketcher::SketchObject", "Sketch022")
body30.addObject(sketch23)
sketch23.AttachmentSupport = (doc.getObject("XZ_Plane029"), [""])
sketch23.MapMode = "FlatFace"
sketch23.AttachmentOffset = App.Placement(App.Vector(0, 0, -30), App.Rotation())
add_polygon(sketch23, [(-163, 241), (-95, 150), (-105, 150), (-173, 241)])  # lines 0-3
sketch23.addConstraint(Sketcher.Constraint("Horizontal", 1))
sketch23.addConstraint(Sketcher.Constraint("Horizontal", 3))
sketch23.addConstraint(Sketcher.Constraint("Parallel", 0, 2))
sketch23.addConstraint(Sketcher.Constraint("DistanceX", 1, 2, 1, 1, 10.0))
sketch23.addConstraint(Sketcher.Constraint("DistanceX", 0, 2, -1, 1, 95.0))
sketch23.addConstraint(Sketcher.Constraint("DistanceY", -1, 1, 0, 2, 150.0))
sketch23.addConstraint(Sketcher.Constraint("Distance", 0, 113.503444))
sketch23.addConstraint(Sketcher.Constraint("DistanceX", 2, 2, -1, 1, 173.102067))
pad23 = doc.addObject("PartDesign::Pad", "Pad022")
body30.addObject(pad23)
pad23.Profile = sketch23
pad23.Length = 60
body31 = doc.addObject("PartDesign::Body", "Body030")

# Sketch on XZ plane
sketch24 = doc.addObject("Sketcher::SketchObject", "Sketch023")
body31.addObject(sketch24)
sketch24.AttachmentSupport = (doc.getObject("XZ_Plane030"), [""])
sketch24.MapMode = "FlatFace"
sketch24.AttachmentOffset = App.Placement(App.Vector(0, 0, -30), App.Rotation())
add_polygon(sketch24, [(-60, 291), (-60, 251), (-70, 251), (-70, 291)])  # lines 0-3
sketch24.addConstraint(Sketcher.Constraint("Vertical", 0))
sketch24.addConstraint(Sketcher.Constraint("Horizontal", 1))
sketch24.addConstraint(Sketcher.Constraint("Vertical", 2))
sketch24.addConstraint(Sketcher.Constraint("Horizontal", 3))
sketch24.addConstraint(Sketcher.Constraint("DistanceX", 1, 2, 1, 1, 10.0))
sketch24.addConstraint(Sketcher.Constraint("DistanceY", 0, 2, 0, 1, 40.0))
sketch24.addConstraint(Sketcher.Constraint("DistanceX", 0, 2, -1, 1, 60.0))
sketch24.addConstraint(Sketcher.Constraint("DistanceY", -1, 1, 0, 2, 250.802755))
pad24 = doc.addObject("PartDesign::Pad", "Pad023")
body31.addObject(pad24)
pad24.Profile = sketch24
pad24.Length = 60
body32 = doc.addObject("PartDesign::Body", "Body031")

# Sketch on XZ plane
sketch25 = doc.addObject("Sketcher::SketchObject", "Sketch024")
body32.addObject(sketch25)
sketch25.AttachmentSupport = (doc.getObject("XZ_Plane031"), [""])
sketch25.MapMode = "FlatFace"
sketch25.AttachmentOffset = App.Placement(App.Vector(0, 0, -30), App.Rotation())
add_polygon(sketch25, [(5, 311), (5, 251), (-5, 251), (-5, 311)])  # lines 0-3
sketch25.addConstraint(Sketcher.Constraint("Vertical", 0))
sketch25.addConstraint(Sketcher.Constraint("Horizontal", 1))
sketch25.addConstraint(Sketcher.Constraint("Vertical", 2))
sketch25.addConstraint(Sketcher.Constraint("Horizontal", 3))
sketch25.addConstraint(Sketcher.Constraint("DistanceX", 1, 2, 1, 1, 10.0))
sketch25.addConstraint(Sketcher.Constraint("DistanceY", 0, 2, 0, 1, 60.0))
sketch25.addConstraint(Sketcher.Constraint("DistanceX", -1, 1, 0, 2, 5.0))
sketch25.addConstraint(Sketcher.Constraint("DistanceY", -1, 1, 0, 2, 250.802755))
pad25 = doc.addObject("PartDesign::Pad", "Pad024")
body32.addObject(pad25)
pad25.Profile = sketch25
pad25.Length = 60
body33 = doc.addObject("PartDesign::Body", "Body032")
doc.recompute()

mirroring8 = doc.addObject("Part::Mirroring", "Mirroring007")
mirroring8.Source = body29
mirroring8.Base = App.Vector(0, 0, 0)
mirroring8.Normal = App.Vector(1, 0, 0)
body33.BaseFeature = mirroring8
doc.recompute()
body34 = doc.addObject("PartDesign::Body", "Body033")
doc.recompute()

mirroring9 = doc.addObject("Part::Mirroring", "Mirroring008")
mirroring9.Source = body30
mirroring9.Base = App.Vector(0, 0, 0)
mirroring9.Normal = App.Vector(1, 0, 0)
body34.BaseFeature = mirroring9
doc.recompute()
body35 = doc.addObject("PartDesign::Body", "Body034")
doc.recompute()

mirroring10 = doc.addObject("Part::Mirroring", "Mirroring009")
mirroring10.Source = body26
mirroring10.Base = App.Vector(0, 0, 0)
mirroring10.Normal = App.Vector(1, 0, 0)
body35.BaseFeature = mirroring10
doc.recompute()
body36 = doc.addObject("PartDesign::Body", "Body035")
doc.recompute()

mirroring11 = doc.addObject("Part::Mirroring", "Mirroring010")
mirroring11.Source = body31
mirroring11.Base = App.Vector(0, 0, 0)
mirroring11.Normal = App.Vector(1, 0, 0)
body36.BaseFeature = mirroring11
doc.recompute()
body37 = doc.addObject("PartDesign::Body", "Body036")

# Sketch on XZ plane
sketch26 = doc.addObject("Sketcher::SketchObject", "Sketch025")
body37.addObject(sketch26)
sketch26.AttachmentSupport = (doc.getObject("XZ_Plane036"), [""])
sketch26.MapMode = "FlatFace"
sketch26.AttachmentOffset = App.Placement(App.Vector(0, 0, -30), App.Rotation())
add_polygon(sketch26, [(30, 311), (-30, 311), (-30, 361), (30, 361)])  # lines 0-3
sketch26.addConstraint(Sketcher.Constraint("Horizontal", 0))
sketch26.addConstraint(Sketcher.Constraint("Vertical", 1))
sketch26.addConstraint(Sketcher.Constraint("Horizontal", 2))
sketch26.addConstraint(Sketcher.Constraint("Vertical", 3))
sketch26.addConstraint(Sketcher.Constraint("DistanceX", 0, 2, 0, 1, 60.0))
sketch26.addConstraint(Sketcher.Constraint("DistanceY", 1, 1, 1, 2, 50.0))
sketch26.addConstraint(Sketcher.Constraint("DistanceX", 0, 2, -1, 1, 30.0))
sketch26.addConstraint(Sketcher.Constraint("DistanceY", -1, 1, 0, 2, 310.802755))
pad26 = doc.addObject("PartDesign::Pad", "Pad025")
body37.addObject(pad26)
pad26.Profile = sketch26
pad26.Length = 60
doc.recompute()

thickness3 = doc.addObject("PartDesign::Thickness", "Thickness002")
body37.addObject(thickness3)
thickness3.Base = (pad26, faces_at(pad26, [(0, -30, 335.803), (0, 30, 335.803)]))
thickness3.Value = 2.5
thickness3.Reversed = True
thickness3.Join = "Arc"

doc.recompute()
